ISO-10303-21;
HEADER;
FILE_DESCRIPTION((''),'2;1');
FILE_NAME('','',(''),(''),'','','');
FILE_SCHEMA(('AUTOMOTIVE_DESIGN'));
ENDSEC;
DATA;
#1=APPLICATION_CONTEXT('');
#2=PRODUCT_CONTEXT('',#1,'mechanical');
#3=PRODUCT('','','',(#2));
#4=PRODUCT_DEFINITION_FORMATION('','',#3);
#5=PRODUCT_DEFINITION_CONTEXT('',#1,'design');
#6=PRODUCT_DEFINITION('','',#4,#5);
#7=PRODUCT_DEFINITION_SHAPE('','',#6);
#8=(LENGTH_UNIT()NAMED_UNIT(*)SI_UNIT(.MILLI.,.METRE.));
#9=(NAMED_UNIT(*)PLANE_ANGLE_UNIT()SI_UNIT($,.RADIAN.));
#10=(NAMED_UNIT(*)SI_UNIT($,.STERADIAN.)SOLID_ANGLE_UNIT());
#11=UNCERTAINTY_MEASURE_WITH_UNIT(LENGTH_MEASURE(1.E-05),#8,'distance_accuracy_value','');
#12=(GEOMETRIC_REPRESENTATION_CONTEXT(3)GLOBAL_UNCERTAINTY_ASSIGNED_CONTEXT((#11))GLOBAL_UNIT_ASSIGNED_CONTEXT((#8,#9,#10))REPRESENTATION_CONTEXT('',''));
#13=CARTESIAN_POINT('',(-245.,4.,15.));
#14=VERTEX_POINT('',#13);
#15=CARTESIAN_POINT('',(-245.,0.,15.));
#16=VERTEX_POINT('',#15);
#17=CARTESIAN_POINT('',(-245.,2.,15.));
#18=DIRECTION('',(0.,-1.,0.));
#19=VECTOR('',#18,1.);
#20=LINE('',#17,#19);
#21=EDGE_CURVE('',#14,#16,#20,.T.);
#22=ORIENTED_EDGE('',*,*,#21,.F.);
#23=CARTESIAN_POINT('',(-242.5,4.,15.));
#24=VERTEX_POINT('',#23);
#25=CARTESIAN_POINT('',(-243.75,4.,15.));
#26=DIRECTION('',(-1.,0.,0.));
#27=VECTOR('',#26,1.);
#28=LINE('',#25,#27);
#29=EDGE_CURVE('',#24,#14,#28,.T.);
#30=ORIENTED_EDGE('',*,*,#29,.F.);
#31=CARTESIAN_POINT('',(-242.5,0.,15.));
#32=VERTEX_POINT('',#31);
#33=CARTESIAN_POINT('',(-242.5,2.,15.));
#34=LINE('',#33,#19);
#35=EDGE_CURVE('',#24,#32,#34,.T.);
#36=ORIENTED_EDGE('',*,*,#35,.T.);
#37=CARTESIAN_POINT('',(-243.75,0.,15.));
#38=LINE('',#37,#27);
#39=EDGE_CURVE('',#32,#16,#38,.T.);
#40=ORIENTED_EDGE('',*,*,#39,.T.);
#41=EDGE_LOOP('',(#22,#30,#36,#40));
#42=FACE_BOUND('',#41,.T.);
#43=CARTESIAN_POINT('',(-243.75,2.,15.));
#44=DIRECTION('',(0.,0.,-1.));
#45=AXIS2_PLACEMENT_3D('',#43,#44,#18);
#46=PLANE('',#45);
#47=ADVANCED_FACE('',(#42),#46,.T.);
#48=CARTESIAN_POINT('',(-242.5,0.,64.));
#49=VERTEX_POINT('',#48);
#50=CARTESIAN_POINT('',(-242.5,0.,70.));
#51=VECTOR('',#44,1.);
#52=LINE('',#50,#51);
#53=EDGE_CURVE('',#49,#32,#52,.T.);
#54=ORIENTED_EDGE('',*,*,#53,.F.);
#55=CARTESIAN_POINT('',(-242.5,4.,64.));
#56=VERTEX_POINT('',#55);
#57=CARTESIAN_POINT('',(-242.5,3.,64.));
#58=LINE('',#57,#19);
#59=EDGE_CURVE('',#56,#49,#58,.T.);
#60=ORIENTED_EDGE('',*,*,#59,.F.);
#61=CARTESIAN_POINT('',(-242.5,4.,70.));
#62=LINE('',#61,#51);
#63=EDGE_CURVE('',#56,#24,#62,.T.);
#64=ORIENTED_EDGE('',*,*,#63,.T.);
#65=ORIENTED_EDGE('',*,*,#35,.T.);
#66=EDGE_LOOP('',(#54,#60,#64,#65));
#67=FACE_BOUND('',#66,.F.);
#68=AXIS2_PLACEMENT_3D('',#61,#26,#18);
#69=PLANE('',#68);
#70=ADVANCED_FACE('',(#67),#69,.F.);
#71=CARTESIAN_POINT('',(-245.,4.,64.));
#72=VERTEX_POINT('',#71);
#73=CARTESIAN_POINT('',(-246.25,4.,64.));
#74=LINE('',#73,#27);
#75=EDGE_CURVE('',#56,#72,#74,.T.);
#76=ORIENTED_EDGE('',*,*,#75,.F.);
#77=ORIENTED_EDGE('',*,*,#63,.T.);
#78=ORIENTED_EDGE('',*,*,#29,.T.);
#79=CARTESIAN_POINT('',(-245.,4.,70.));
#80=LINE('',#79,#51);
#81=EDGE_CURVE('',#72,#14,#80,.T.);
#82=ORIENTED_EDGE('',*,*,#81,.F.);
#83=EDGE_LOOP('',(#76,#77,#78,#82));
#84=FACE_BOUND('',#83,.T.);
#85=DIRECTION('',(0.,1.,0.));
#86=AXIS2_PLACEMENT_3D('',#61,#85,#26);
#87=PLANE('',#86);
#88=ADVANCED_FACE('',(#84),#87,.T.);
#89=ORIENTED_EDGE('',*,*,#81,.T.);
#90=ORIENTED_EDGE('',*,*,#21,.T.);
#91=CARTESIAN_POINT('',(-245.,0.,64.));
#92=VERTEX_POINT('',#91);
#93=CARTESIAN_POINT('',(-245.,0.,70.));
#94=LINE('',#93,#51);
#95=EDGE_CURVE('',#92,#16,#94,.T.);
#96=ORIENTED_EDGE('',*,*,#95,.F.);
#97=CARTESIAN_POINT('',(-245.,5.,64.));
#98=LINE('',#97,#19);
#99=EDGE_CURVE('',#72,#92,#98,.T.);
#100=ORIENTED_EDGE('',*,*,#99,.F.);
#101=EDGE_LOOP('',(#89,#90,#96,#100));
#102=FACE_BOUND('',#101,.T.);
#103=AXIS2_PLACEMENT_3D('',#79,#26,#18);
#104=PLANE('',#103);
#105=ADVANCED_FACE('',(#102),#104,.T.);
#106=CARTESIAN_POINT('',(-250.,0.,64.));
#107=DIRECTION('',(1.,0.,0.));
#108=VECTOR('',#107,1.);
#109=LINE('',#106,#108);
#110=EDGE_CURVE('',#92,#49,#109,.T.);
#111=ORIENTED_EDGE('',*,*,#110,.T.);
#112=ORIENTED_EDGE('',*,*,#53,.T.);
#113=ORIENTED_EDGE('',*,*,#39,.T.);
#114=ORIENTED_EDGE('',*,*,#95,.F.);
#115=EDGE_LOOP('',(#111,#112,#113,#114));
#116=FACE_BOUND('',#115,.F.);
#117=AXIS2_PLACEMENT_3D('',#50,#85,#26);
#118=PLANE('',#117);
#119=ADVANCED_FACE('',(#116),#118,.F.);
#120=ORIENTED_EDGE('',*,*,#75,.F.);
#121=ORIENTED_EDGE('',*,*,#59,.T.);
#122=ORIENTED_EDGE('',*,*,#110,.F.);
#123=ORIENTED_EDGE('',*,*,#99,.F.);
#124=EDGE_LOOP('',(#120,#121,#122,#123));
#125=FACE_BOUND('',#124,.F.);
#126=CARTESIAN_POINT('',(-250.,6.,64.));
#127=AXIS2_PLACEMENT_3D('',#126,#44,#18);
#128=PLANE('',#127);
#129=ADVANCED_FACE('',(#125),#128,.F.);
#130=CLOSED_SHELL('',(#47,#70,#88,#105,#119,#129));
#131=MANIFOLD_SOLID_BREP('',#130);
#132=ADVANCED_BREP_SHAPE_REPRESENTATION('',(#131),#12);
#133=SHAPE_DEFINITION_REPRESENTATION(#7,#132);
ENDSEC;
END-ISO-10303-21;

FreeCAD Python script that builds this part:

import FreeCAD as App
import Part
import Sketcher
from FreeCAD import Vector
Q = App.Units.Quantity


def add_polygon(sketch, points):
    """Adds a closed chain of lines whose ends are joined by coincident constraints."""
    first, n = sketch.GeometryCount, len(points)
    for a, b in zip(points, points[1:] + points[:1]):
        sketch.addGeometry(Part.LineSegment(App.Vector(*a, 0), App.Vector(*b, 0)), False)
    for i in range(n):
        sketch.addConstraint(Sketcher.Constraint("Coincident", first + i, 2, first + (i + 1) % n, 1))

doc = App.newDocument("Part")
body = doc.addObject("PartDesign::Body", "Body")

# Sketch on YZ plane
sketch1 = body.newObject("Sketcher::SketchObject", "Sketch")
sketch1.AttachmentSupport = (doc.getObject("YZ_Plane"), [""])
sketch1.MapMode = "FlatFace"
sketch1.AttachmentOffset = App.Placement(Vector(0, 0, -250), App.Rotation())
add_polygon(sketch1, [(6, 70), (6, 64), (0, 64), (0, 70)])  # lines 0-3
sketch1.addConstraint([
    Sketcher.Constraint("Vertical", 0),
    Sketcher.Constraint("Horizontal", 1),
    Sketcher.Constraint("Vertical", 2),
    Sketcher.Constraint("Horizontal", 3),
    Sketcher.Constraint("PointOnObject", 1, 2, -2),
    Sketcher.Constraint("Equal", 3, 0),
    Sketcher.Constraint("DistanceX", 1, 2, 1, 1, Q("6 mm")),
    Sketcher.Constraint("DistanceY", -1, 1, 0, 2, Q("64 mm")),
])
pad1 = body.newObject("PartDesign::Pad", "Pad")
pad1.Profile = sketch1
pad1.Length = 7.5
body2 = doc.addObject("PartDesign::Body", "Body001")

# Sketch on XY plane
sketch2 = body2.newObject("Sketcher::SketchObject", "Sketch001")
sketch2.AttachmentSupport = (doc.getObject("XY_Plane001"), [""])
sketch2.MapMode = "FlatFace"
sketch2.AttachmentOffset = App.Placement(Vector(0, 0, 70), App.Rotation())
add_polygon(sketch2, [(-242.5, 4), (-240, 4), (-240, 0), (-242.5, 0)])  # lines 0-3
sketch2.addConstraint([
    Sketcher.Constraint("Horizontal", 0),
    Sketcher.Constraint("Vertical", 1),
    Sketcher.Constraint("Horizontal", 2),
    Sketcher.Constraint("Vertical", 3),
    Sketcher.Constraint("PointOnObject", 1, 2, -1),
    Sketcher.Constraint("DistanceY", 1, 2, 1, 1, Q("4 mm")),
    Sketcher.Constraint("DistanceX", 0, 1, 0, 2, Q("2.5 mm")),
    Sketcher.Constraint("DistanceX", 0, 2, -1, 1, Q("240 mm")),
])
pad2 = body2.newObject("PartDesign::Pad", "Pad001")
pad2.Profile = sketch2
pad2.Length = 55
pad2.Reversed = True
body3 = doc.addObject("PartDesign::Body", "Body002")
doc.recompute()

body2.Placement = App.Placement(Vector(-2.5, 0, 0), App.Rotation(Vector(0, 0, 1), 0))
boolean = body3.newObject("PartDesign::Boolean", "Boolean")
boolean.Type = "Fuse"
boolean.addObjects([body2])
doc.recompute()

boolean2 = body3.newObject("PartDesign::Boolean", "Boolean001")
boolean2.Type = "Cut"
boolean2.addObjects([body])

doc.recompute()
